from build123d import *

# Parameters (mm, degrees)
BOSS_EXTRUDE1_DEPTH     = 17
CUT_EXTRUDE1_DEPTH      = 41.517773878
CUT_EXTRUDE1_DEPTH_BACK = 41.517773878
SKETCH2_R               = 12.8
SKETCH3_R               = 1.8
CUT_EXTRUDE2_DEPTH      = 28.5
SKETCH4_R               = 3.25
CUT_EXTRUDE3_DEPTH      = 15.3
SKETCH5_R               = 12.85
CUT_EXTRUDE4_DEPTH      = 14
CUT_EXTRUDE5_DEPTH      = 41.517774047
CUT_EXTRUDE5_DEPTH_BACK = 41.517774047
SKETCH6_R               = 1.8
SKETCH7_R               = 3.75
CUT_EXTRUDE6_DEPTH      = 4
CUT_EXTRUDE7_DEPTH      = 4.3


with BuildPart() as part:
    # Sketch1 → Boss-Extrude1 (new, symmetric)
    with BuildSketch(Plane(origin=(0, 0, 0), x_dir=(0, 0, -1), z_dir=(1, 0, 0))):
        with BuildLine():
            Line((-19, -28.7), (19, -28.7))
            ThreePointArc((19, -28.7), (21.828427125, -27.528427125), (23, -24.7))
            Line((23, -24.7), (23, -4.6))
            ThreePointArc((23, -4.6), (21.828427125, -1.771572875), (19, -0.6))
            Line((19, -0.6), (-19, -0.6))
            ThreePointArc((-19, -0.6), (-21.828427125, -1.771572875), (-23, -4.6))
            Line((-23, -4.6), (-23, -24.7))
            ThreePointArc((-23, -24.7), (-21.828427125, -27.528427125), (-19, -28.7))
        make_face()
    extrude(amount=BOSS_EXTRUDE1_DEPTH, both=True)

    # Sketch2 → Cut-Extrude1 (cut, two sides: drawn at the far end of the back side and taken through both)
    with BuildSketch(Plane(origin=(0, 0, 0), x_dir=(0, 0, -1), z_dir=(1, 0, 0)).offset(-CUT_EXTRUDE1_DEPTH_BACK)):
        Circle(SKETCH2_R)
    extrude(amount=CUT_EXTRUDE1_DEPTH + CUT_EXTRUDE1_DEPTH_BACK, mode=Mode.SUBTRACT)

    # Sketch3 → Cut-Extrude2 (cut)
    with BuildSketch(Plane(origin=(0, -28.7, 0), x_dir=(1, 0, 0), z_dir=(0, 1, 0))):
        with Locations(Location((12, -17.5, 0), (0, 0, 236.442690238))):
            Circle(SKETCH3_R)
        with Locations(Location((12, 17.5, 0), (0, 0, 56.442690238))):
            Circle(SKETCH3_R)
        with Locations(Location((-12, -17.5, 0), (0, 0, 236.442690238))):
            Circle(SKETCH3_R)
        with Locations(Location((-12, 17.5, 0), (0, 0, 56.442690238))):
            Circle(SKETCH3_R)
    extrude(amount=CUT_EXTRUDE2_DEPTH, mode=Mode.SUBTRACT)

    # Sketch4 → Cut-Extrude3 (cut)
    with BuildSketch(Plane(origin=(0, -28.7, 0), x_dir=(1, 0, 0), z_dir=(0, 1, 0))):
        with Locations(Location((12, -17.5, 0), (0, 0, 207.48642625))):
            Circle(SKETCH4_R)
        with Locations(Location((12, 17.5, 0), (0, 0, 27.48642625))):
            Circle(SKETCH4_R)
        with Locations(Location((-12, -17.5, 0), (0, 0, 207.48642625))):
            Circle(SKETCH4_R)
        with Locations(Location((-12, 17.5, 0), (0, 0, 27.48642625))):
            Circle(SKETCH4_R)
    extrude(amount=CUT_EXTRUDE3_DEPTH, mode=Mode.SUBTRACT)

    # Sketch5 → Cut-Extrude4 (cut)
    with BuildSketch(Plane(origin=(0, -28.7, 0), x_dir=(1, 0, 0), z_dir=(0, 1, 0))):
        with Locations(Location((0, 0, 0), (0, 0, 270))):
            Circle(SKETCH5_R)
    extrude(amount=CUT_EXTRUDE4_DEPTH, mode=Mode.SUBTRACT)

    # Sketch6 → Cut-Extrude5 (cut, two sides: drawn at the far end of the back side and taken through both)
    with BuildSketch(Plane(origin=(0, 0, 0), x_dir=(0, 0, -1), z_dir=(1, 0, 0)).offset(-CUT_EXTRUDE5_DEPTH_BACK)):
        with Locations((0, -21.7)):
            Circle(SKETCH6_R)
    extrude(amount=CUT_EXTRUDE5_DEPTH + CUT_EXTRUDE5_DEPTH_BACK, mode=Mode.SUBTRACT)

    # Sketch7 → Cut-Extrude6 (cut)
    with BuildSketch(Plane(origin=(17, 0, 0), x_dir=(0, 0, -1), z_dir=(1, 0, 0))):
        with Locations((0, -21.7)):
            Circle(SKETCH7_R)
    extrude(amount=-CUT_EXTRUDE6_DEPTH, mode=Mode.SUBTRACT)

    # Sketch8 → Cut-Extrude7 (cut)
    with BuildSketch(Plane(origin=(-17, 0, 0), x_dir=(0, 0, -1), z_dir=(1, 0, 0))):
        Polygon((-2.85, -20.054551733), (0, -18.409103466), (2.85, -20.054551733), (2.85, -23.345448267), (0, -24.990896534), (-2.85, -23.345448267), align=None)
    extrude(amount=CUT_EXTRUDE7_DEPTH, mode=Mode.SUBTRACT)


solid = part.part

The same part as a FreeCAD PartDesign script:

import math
import FreeCAD as App
import Part
import Sketcher

V = App.Vector
Q = App.Units.Quantity


def add_polygon(sketch, points):
    """Adds a closed chain of lines whose ends are joined by coincident constraints."""
    first, n = sketch.GeometryCount, len(points)
    for a, b in zip(points, points[1:] + points[:1]):
        sketch.addGeometry(Part.LineSegment(App.Vector(*a, 0), App.Vector(*b, 0)), False)
    for i in range(n):
        sketch.addConstraint(Sketcher.Constraint("Coincident", first + i, 2, first + (i + 1) % n, 1))

doc = App.newDocument("Part")
body = doc.addObject("PartDesign::Body", "Body")

sketch1 = body.newObject("Sketcher::SketchObject", "Sketch")
sketch1.AttachmentSupport = (doc.getObject("YZ_Plane"), [""])
sketch1.MapMode = "FlatFace"
sketch1.addGeometry([
    Part.LineSegment(V(-28.7, 19, 0), V(-28.7, -19, 0)),
    Part.ArcOfCircle(Part.Circle(V(-24.7, -19, 0), V(0, 0, 1), 4), math.radians(180), math.radians(270)),
    Part.LineSegment(V(-24.7, -23, 0), V(-4.6, -23, 0)),
    Part.ArcOfCircle(Part.Circle(V(-4.6, -19, 0), V(0, 0, 1), 4), math.radians(-90), math.radians(0)),
    Part.LineSegment(V(-0.6, -19, 0), V(-0.6, 19, 0)),
    Part.ArcOfCircle(Part.Circle(V(-4.6, 19, 0), V(0, 0, 1), 4), math.radians(0), math.radians(90)),
    Part.LineSegment(V(-4.6, 23, 0), V(-24.7, 23, 0)),
    Part.ArcOfCircle(Part.Circle(V(-24.7, 19, 0), V(0, 0, 1), 4), math.radians(90), math.radians(180)),
], False)
sketch1.addConstraint([
    Sketcher.Constraint("Tangent", 0, 2, 1, 1),
    Sketcher.Constraint("Tangent", 1, 2, 2, 1),
    Sketcher.Constraint("Tangent", 2, 2, 3, 1),
    Sketcher.Constraint("Tangent", 3, 2, 4, 1),
    Sketcher.Constraint("Tangent", 4, 2, 5, 1),
    Sketcher.Constraint("Tangent", 5, 2, 6, 1),
    Sketcher.Constraint("Tangent", 6, 2, 7, 1),
    Sketcher.Constraint("Tangent", 7, 2, 0, 1),
    Sketcher.Constraint("Vertical", 0),
    Sketcher.Constraint("Horizontal", 2),
    Sketcher.Constraint("Vertical", 4),
    Sketcher.Constraint("Horizontal", 6),
    Sketcher.Constraint("Equal", 1, 3),
    Sketcher.Constraint("Equal", 3, 5),
    Sketcher.Constraint("Equal", 5, 7),
    Sketcher.Constraint("Radius", 1, Q("4 mm")),
    Sketcher.Constraint("DistanceY", 0, 2, 0, 1, Q("38 mm")),
    Sketcher.Constraint("DistanceX", 2, 1, 2, 2, Q("20.1 mm")),
    Sketcher.Constraint("DistanceY", 1, 3, -1, 1, Q("19 mm")),
    Sketcher.Constraint("DistanceX", 1, 3, -1, 1, Q("24.7 mm")),
])
pad1 = body.newObject("PartDesign::Pad", "Pad")
pad1.Profile = sketch1
pad1.Length = 34
pad1.Midplane = True

sketch2 = body.newObject("Sketcher::SketchObject", "Sketch001")
sketch2.AttachmentSupport = (doc.getObject("YZ_Plane"), [""])
sketch2.MapMode = "FlatFace"
sketch2.addGeometry(Part.Circle(V(0, 0, 0), V(0, 0, 1), 13), False)
sketch2.addConstraint([
    Sketcher.Constraint("Coincident", 0, 3, -1, 1),
    Sketcher.Constraint("Diameter", 0, Q("25.6 mm")),
])
pocket1 = body.newObject("PartDesign::Pocket", "Pocket")
pocket1.Profile = sketch2
pocket1.Type = "ThroughAll"
pocket1.Midplane = True

sketch3 = body.newObject("Sketcher::SketchObject", "Sketch002")
sketch3.AttachmentSupport = (doc.getObject("XZ_Plane"), [""])
sketch3.MapMode = "FlatFace"
sketch3.AttachmentOffset = App.Placement(V(0, 0, 28.7), App.Rotation())
sketch3.addGeometry([
    Part.Circle(V(12, 17.5, 0), V(0, 0, 1), 1.8),
    Part.Circle(V(12, -17.5, 0), V(0, 0, 1), 1.8),
    Part.Circle(V(-12, 17.5, 0), V(0, 0, 1), 1.8),
    Part.Circle(V(-12, -17.5, 0), V(0, 0, 1), 1.8),
], False)
sketch3.addConstraint([
    Sketcher.Constraint("Equal", 0, 1),
    Sketcher.Constraint("Equal", 1, 2),
    Sketcher.Constraint("Equal", 2, 3),
    Sketcher.Constraint("Symmetric", 1, 3, 2, 3, -1, 1),
    Sketcher.Constraint("Symmetric", 0, 3, 3, 3, -1, 1),
    Sketcher.Constraint("Symmetric", 0, 3, 2, 3, -2),
    Sketcher.Constraint("Diameter", 0, Q("3.6 mm")),
    Sketcher.Constraint("DistanceX", -1, 1, 0, 3, Q("12 mm")),
    Sketcher.Constraint("DistanceY", 1, 3, 0, 3, Q("35 mm")),
])
pocket2 = body.newObject("PartDesign::Pocket", "Pocket001")
pocket2.Profile = sketch3
pocket2.Length = 28.5

sketch4 = body.newObject("Sketcher::SketchObject", "Sketch003")
sketch4.AttachmentSupport = (doc.getObject("XZ_Plane"), [""])
sketch4.MapMode = "FlatFace"
sketch4.AttachmentOffset = App.Placement(V(0, 0, 28.7), App.Rotation())
sketch4.addGeometry([
    Part.Circle(V(12, 17.5, 0), V(0, 0, 1), 3.2),
    Part.Circle(V(12, -17.5, 0), V(0, 0, 1), 3.2),
    Part.Circle(V(-12, 17.5, 0), V(0, 0, 1), 3.2),
    Part.Circle(V(-12, -17.5, 0), V(0, 0, 1), 3.2),
], False)
sketch4.addConstraint([
    Sketcher.Constraint("Equal", 0, 1),
    Sketcher.Constraint("Equal", 1, 2),
    Sketcher.Constraint("Equal", 2, 3),
    Sketcher.Constraint("Symmetric", 1, 3, 2, 3, -1, 1),
    Sketcher.Constraint("Symmetric", 0, 3, 3, 3, -1, 1),
    Sketcher.Constraint("Symmetric", 0, 3, 2, 3, -2),
    Sketcher.Constraint("Diameter", 0, Q("6.5 mm")),
    Sketcher.Constraint("DistanceX", -1, 1, 0, 3, Q("12 mm")),
    Sketcher.Constraint("DistanceY", 1, 3, 0, 3, Q("35 mm")),
])
pocket3 = body.newObject("PartDesign::Pocket", "Pocket002")
pocket3.Profile = sketch4
pocket3.Length = 15.3

sketch5 = body.newObject("Sketcher::SketchObject", "Sketch004")
sketch5.AttachmentSupport = (doc.getObject("XZ_Plane"), [""])
sketch5.MapMode = "FlatFace"
sketch5.AttachmentOffset = App.Placement(V(0, 0, 28.7), App.Rotation())
sketch5.addGeometry(Part.Circle(V(0, 0, 0), V(0, 0, 1), 13), False)
sketch5.addConstraint([
    Sketcher.Constraint("Coincident", 0, 3, -1, 1),
    Sketcher.Constraint("Diameter", 0, Q("25.7 mm")),
])
pocket4 = body.newObject("PartDesign::Pocket", "Pocket003")
pocket4.Profile = sketch5
pocket4.Length = 14

sketch6 = body.newObject("Sketcher::SketchObject", "Sketch005")
sketch6.AttachmentSupport = (doc.getObject("YZ_Plane"), [""])
sketch6.MapMode = "FlatFace"
sketch6.addGeometry(Part.Circle(V(-21.7, 0, 0), V(0, 0, 1), 1.8), False)
sketch6.addConstraint([
    Sketcher.Constraint("PointOnObject", 0, 3, -1),
    Sketcher.Constraint("Diameter", 0, Q("3.6 mm")),
    Sketcher.Constraint("DistanceX", 0, 3, -1, 1, Q("21.7 mm")),
])
pocket5 = body.newObject("PartDesign::Pocket", "Pocket004")
pocket5.Profile = sketch6
pocket5.Type = "ThroughAll"
pocket5.Midplane = True

sketch7 = body.newObject("Sketcher::SketchObject", "Sketch006")
sketch7.AttachmentSupport = (doc.getObject("YZ_Plane"), [""])
sketch7.MapMode = "FlatFace"
sketch7.AttachmentOffset = App.Placement(V(0, 0, 17), App.Rotation())
sketch7.addGeometry(Part.Circle(V(-21.7, 0, 0), V(0, 0, 1), 3.8), False)
sketch7.addConstraint([
    Sketcher.Constraint("PointOnObject", 0, 3, -1),
    Sketcher.Constraint("Diameter", 0, Q("7.5 mm")),
    Sketcher.Constraint("DistanceX", 0, 3, -1, 1, Q("21.7 mm")),
])
pocket6 = body.newObject("PartDesign::Pocket", "Pocket005")
pocket6.Profile = sketch7
pocket6.Length = 4

sketch8 = body.newObject("Sketcher::SketchObject", "Sketch007")
sketch8.AttachmentSupport = (doc.getObject("YZ_Plane"), [""])
sketch8.MapMode = "FlatFace"
sketch8.AttachmentOffset = App.Placement(V(0, 0, -17), App.Rotation())
add_polygon(sketch8, [(-18.4, 0), (-20.1, 2.9), (-23.3, 2.9), (-25, 0), (-23.3, -2.9), (-20.1, -2.9)])
sketch8.addConstraint([
    Sketcher.Constraint("Horizontal", 1),
    Sketcher.Constraint("Horizontal", 4),
    Sketcher.Constraint("Symmetric", 1, 2, 3, 2, -1),
    Sketcher.Constraint("PointOnObject", 2, 2, -1),
    Sketcher.Constraint("PointOnObject", 5, 2, -1),
    Sketcher.Constraint("Parallel", 0, 3),
    Sketcher.Constraint("Parallel", 2, 5),
    Sketcher.Constraint("Angle", 0, Q("120 deg")),
    Sketcher.Constraint("DistanceY", 3, 2, 1, 2, Q("5.7 mm")),
    Sketcher.Constraint("DistanceX", 1, 2, 1, 1, Q("3.290897 mm")),
    Sketcher.Constraint("DistanceX", 0, 2, -1, 1, Q("20.054552 mm")),
])
pocket7 = body.newObject("PartDesign::Pocket", "Pocket006")
pocket7.Profile = sketch8
pocket7.Length = 4.3
pocket7.Reversed = True

doc.recompute()
